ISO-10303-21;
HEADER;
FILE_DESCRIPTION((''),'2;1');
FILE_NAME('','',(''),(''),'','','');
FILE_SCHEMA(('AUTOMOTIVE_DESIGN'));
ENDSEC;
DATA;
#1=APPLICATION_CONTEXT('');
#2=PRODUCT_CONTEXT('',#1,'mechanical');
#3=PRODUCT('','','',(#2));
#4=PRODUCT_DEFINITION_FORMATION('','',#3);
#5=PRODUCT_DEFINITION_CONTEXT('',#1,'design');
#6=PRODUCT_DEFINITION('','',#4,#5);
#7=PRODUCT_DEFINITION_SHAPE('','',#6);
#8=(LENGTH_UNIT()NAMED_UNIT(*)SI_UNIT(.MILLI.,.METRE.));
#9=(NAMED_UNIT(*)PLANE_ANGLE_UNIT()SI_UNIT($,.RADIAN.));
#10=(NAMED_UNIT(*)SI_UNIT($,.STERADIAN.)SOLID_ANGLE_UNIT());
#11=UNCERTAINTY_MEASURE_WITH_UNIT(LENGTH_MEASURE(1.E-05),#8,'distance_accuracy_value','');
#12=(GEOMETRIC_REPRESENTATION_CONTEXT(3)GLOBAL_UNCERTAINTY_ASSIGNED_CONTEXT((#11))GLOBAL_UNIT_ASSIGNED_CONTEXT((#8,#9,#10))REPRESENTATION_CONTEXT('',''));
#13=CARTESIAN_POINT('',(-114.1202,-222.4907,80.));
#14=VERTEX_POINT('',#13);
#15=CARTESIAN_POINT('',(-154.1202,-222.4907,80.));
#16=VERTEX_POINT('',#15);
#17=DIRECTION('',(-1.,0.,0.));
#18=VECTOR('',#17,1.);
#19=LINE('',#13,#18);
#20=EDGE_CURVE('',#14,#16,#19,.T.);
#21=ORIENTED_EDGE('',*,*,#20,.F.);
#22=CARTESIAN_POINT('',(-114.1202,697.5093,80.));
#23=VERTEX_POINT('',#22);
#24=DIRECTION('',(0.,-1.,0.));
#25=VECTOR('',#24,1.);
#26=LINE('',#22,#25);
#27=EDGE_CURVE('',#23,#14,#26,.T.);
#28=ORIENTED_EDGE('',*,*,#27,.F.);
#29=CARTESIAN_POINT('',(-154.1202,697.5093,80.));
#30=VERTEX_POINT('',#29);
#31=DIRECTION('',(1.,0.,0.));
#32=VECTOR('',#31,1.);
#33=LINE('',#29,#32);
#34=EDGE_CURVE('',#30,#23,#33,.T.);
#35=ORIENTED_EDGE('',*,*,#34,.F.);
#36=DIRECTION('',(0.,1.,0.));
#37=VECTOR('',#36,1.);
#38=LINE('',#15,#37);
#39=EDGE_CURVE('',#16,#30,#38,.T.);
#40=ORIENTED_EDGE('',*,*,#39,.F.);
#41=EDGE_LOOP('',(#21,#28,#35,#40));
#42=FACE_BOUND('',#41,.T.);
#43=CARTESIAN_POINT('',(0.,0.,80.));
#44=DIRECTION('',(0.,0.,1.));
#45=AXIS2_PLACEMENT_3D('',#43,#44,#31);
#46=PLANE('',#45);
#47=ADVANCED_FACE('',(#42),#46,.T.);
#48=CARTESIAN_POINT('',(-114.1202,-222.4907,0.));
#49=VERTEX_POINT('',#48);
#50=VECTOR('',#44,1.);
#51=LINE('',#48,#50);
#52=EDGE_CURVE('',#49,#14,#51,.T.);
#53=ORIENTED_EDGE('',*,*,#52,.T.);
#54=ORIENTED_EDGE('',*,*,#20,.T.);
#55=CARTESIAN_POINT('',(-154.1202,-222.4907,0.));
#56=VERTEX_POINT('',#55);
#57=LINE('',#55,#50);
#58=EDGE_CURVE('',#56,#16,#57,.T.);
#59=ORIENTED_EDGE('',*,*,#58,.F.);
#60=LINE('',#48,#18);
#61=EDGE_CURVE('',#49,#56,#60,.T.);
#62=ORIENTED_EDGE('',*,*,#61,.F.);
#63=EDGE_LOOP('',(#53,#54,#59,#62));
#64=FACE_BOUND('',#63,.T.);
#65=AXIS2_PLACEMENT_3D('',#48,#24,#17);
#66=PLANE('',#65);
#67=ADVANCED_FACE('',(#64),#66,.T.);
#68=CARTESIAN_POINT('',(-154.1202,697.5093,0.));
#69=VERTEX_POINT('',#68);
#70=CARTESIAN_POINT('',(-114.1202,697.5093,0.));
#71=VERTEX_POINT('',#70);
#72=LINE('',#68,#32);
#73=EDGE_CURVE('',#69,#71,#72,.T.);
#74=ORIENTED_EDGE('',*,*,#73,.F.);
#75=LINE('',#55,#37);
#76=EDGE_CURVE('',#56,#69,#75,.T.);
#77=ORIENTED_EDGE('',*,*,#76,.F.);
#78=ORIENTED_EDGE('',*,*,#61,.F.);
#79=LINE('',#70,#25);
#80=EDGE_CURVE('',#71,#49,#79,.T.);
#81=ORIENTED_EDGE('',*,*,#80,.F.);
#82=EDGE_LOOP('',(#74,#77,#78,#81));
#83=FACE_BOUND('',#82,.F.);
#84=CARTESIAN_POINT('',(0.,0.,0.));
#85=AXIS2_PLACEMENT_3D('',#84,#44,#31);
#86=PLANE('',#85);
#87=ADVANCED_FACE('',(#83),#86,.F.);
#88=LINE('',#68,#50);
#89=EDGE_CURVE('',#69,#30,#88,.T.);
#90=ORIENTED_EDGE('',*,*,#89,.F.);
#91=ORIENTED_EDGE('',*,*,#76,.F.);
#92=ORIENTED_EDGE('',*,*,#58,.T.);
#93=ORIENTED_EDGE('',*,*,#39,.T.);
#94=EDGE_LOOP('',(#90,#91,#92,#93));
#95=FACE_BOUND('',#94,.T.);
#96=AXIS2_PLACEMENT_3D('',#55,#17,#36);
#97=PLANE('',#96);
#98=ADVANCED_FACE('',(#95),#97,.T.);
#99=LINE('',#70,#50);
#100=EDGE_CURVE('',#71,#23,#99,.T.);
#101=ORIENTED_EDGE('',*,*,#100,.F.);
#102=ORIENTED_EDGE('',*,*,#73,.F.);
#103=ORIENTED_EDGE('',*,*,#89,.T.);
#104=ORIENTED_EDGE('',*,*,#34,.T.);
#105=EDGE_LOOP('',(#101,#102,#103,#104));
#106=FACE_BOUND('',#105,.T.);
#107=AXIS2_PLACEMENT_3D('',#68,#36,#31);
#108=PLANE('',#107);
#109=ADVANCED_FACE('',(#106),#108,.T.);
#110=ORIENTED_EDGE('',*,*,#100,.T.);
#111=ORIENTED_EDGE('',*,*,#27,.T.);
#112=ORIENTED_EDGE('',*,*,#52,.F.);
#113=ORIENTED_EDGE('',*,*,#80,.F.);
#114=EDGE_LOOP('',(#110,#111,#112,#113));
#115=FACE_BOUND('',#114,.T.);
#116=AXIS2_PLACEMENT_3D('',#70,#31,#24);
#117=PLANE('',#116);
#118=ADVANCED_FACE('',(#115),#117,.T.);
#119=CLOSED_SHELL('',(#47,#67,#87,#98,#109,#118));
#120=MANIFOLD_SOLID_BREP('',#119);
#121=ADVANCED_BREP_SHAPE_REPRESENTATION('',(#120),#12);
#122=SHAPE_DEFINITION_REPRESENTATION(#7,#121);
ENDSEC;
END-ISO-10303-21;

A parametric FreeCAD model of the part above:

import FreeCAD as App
import Part
import Sketcher
from FreeCAD import Vector


def add_polygon(sketch, points):
    """Adds a closed chain of lines whose ends are joined by coincident constraints."""
    first, n = sketch.GeometryCount, len(points)
    for a, b in zip(points, points[1:] + points[:1]):
        sketch.addGeometry(Part.LineSegment(App.Vector(*a, 0), App.Vector(*b, 0)), False)
    for i in range(n):
        sketch.addConstraint(Sketcher.Constraint("Coincident", first + i, 2, first + (i + 1) % n, 1))

doc = App.newDocument("Part")
body = doc.addObject("PartDesign::Body", "Body")

sketch1 = doc.addObject("Sketcher::SketchObject", "Sketch")
body.addObject(sketch1)
sketch1.AttachmentSupport = (doc.XY_Plane, [""])
sketch1.MapMode = "FlatFace"
add_polygon(sketch1, [(-154, -222), (-114, -222), (-114, 698), (-154, 698)])
sketch1.addConstraint(Sketcher.Constraint("Horizontal", 0))
sketch1.addConstraint(Sketcher.Constraint("Vertical", 1))
sketch1.addConstraint(Sketcher.Constraint("Horizontal", 2))
sketch1.addConstraint(Sketcher.Constraint("Vertical", 3))
sketch1.addConstraint(Sketcher.Constraint("DistanceX", 0, 1, 0, 2, 40.0))
sketch1.addConstraint(Sketcher.Constraint("DistanceY", 1, 1, 1, 2, 920.0))
sketch1.addConstraint(Sketcher.Constraint("DistanceX", 0, 2, -1, 1, 114.1202))
sketch1.addConstraint(Sketcher.Constraint("DistanceY", 0, 2, -1, 1, 222.4907))
pad1 = doc.addObject("PartDesign::Pad", "Pad")
body.addObject(pad1)
pad1.Profile = sketch1
pad1.Length = 80

doc.recompute()
